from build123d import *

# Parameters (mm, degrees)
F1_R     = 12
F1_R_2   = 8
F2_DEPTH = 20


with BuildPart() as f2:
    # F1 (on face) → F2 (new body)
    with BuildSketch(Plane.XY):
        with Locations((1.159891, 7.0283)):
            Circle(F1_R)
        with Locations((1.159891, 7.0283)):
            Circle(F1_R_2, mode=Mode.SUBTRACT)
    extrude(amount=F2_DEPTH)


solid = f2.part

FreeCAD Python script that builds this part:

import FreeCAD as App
import Part
import Sketcher

V = App.Vector
Q = App.Units.Quantity

doc = App.newDocument("Part")
body = doc.addObject("PartDesign::Body", "Body")

# Sketch on XY plane
sketch1 = body.newObject("Sketcher::SketchObject", "Sketch")
sketch1.AttachmentSupport = (doc.getObject("XY_Plane"), [""])
sketch1.MapMode = "FlatFace"
sketch1.addGeometry([
    Part.Circle(V(1.159891, 7.0283, 0), V(0, 0, 1), 12),
    Part.Circle(V(1.159891, 7.0283, 0), V(0, 0, 1), 8),
], False)
sketch1.addConstraint([
    Sketcher.Constraint("Coincident", 1, 3, 0, 3),
    Sketcher.Constraint("Diameter", 0, Q("24 mm")),
    Sketcher.Constraint("Diameter", 1, Q("16 mm")),
    Sketcher.Constraint("DistanceY", -1, 1, 0, 3, Q("7.0283 mm")),
    Sketcher.Constraint("DistanceX", -1, 1, 0, 3, Q("1.159891 mm")),
])
pad1 = body.newObject("PartDesign::Pad", "Pad")
pad1.Profile = sketch1
pad1.Length = 20

doc.recompute()
